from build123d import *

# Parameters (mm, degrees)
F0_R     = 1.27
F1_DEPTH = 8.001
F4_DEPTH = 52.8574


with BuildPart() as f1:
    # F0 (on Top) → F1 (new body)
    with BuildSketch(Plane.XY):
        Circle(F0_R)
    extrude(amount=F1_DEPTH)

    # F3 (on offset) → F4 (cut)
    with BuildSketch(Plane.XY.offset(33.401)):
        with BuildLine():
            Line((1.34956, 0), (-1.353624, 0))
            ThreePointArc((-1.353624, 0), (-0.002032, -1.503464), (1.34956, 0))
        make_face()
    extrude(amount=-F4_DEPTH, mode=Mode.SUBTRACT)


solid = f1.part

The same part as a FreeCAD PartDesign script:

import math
import FreeCAD as App
import Part
import Sketcher
Q = App.Units.Quantity

doc = App.newDocument("Part")
body = doc.addObject("PartDesign::Body", "Body")

sketch1 = body.newObject("Sketcher::SketchObject", "Sketch")
sketch1.AttachmentSupport = (doc.getObject("XY_Plane"), [""])
sketch1.MapMode = "FlatFace"
sketch1.addGeometry(Part.Circle(App.Vector(0, 0, 0), App.Vector(0, 0, 1), 1.27), False)
sketch1.addConstraint(Sketcher.Constraint("Coincident", 0, 3, -1, 1))
sketch1.addConstraint(Sketcher.Constraint("Diameter", 0, Q("0.1 in")))
pad1 = body.newObject("PartDesign::Pad", "Pad")
pad1.Profile = sketch1
pad1.Length = Q("0.315 in")

sketch2 = body.newObject("Sketcher::SketchObject", "Sketch001")
sketch2.AttachmentSupport = (doc.getObject("XY_Plane"), [""])
sketch2.MapMode = "FlatFace"
sketch2.AttachmentOffset = App.Placement(App.Vector(0, 0, 1.315 * 25.4), App.Rotation())
sketch2.addGeometry(Part.LineSegment(App.Vector(1.34956, 0, 0), App.Vector(-1.353624, 0, 0)), False)
sketch2.addGeometry(Part.ArcOfCircle(Part.Circle(App.Vector(-0.002032, -0.144201, 0), App.Vector(0, 0, 1), 1.359263), math.radians(173.91015), math.radians(366.08985)), False)
sketch2.addConstraint(Sketcher.Constraint("Coincident", 0, 1, 1, 2))
sketch2.addConstraint(Sketcher.Constraint("Coincident", 1, 1, 0, 2))
sketch2.addConstraint(Sketcher.Constraint("Horizontal", 0))
sketch2.addConstraint(Sketcher.Constraint("PointOnObject", 0, 1, -1))
sketch2.addConstraint(Sketcher.Constraint("Radius", 1, Q("1.359263 mm")))
sketch2.addConstraint(Sketcher.Constraint("DistanceY", 1, 3, -1, 1, Q("0.144201 mm")))
sketch2.addConstraint(Sketcher.Constraint("DistanceX", 1, 3, -1, 1, Q("0.002032 mm")))
pocket1 = body.newObject("PartDesign::Pocket", "Pocket")
pocket1.Profile = sketch2
pocket1.Length = Q("2.081 in")

doc.recompute()
